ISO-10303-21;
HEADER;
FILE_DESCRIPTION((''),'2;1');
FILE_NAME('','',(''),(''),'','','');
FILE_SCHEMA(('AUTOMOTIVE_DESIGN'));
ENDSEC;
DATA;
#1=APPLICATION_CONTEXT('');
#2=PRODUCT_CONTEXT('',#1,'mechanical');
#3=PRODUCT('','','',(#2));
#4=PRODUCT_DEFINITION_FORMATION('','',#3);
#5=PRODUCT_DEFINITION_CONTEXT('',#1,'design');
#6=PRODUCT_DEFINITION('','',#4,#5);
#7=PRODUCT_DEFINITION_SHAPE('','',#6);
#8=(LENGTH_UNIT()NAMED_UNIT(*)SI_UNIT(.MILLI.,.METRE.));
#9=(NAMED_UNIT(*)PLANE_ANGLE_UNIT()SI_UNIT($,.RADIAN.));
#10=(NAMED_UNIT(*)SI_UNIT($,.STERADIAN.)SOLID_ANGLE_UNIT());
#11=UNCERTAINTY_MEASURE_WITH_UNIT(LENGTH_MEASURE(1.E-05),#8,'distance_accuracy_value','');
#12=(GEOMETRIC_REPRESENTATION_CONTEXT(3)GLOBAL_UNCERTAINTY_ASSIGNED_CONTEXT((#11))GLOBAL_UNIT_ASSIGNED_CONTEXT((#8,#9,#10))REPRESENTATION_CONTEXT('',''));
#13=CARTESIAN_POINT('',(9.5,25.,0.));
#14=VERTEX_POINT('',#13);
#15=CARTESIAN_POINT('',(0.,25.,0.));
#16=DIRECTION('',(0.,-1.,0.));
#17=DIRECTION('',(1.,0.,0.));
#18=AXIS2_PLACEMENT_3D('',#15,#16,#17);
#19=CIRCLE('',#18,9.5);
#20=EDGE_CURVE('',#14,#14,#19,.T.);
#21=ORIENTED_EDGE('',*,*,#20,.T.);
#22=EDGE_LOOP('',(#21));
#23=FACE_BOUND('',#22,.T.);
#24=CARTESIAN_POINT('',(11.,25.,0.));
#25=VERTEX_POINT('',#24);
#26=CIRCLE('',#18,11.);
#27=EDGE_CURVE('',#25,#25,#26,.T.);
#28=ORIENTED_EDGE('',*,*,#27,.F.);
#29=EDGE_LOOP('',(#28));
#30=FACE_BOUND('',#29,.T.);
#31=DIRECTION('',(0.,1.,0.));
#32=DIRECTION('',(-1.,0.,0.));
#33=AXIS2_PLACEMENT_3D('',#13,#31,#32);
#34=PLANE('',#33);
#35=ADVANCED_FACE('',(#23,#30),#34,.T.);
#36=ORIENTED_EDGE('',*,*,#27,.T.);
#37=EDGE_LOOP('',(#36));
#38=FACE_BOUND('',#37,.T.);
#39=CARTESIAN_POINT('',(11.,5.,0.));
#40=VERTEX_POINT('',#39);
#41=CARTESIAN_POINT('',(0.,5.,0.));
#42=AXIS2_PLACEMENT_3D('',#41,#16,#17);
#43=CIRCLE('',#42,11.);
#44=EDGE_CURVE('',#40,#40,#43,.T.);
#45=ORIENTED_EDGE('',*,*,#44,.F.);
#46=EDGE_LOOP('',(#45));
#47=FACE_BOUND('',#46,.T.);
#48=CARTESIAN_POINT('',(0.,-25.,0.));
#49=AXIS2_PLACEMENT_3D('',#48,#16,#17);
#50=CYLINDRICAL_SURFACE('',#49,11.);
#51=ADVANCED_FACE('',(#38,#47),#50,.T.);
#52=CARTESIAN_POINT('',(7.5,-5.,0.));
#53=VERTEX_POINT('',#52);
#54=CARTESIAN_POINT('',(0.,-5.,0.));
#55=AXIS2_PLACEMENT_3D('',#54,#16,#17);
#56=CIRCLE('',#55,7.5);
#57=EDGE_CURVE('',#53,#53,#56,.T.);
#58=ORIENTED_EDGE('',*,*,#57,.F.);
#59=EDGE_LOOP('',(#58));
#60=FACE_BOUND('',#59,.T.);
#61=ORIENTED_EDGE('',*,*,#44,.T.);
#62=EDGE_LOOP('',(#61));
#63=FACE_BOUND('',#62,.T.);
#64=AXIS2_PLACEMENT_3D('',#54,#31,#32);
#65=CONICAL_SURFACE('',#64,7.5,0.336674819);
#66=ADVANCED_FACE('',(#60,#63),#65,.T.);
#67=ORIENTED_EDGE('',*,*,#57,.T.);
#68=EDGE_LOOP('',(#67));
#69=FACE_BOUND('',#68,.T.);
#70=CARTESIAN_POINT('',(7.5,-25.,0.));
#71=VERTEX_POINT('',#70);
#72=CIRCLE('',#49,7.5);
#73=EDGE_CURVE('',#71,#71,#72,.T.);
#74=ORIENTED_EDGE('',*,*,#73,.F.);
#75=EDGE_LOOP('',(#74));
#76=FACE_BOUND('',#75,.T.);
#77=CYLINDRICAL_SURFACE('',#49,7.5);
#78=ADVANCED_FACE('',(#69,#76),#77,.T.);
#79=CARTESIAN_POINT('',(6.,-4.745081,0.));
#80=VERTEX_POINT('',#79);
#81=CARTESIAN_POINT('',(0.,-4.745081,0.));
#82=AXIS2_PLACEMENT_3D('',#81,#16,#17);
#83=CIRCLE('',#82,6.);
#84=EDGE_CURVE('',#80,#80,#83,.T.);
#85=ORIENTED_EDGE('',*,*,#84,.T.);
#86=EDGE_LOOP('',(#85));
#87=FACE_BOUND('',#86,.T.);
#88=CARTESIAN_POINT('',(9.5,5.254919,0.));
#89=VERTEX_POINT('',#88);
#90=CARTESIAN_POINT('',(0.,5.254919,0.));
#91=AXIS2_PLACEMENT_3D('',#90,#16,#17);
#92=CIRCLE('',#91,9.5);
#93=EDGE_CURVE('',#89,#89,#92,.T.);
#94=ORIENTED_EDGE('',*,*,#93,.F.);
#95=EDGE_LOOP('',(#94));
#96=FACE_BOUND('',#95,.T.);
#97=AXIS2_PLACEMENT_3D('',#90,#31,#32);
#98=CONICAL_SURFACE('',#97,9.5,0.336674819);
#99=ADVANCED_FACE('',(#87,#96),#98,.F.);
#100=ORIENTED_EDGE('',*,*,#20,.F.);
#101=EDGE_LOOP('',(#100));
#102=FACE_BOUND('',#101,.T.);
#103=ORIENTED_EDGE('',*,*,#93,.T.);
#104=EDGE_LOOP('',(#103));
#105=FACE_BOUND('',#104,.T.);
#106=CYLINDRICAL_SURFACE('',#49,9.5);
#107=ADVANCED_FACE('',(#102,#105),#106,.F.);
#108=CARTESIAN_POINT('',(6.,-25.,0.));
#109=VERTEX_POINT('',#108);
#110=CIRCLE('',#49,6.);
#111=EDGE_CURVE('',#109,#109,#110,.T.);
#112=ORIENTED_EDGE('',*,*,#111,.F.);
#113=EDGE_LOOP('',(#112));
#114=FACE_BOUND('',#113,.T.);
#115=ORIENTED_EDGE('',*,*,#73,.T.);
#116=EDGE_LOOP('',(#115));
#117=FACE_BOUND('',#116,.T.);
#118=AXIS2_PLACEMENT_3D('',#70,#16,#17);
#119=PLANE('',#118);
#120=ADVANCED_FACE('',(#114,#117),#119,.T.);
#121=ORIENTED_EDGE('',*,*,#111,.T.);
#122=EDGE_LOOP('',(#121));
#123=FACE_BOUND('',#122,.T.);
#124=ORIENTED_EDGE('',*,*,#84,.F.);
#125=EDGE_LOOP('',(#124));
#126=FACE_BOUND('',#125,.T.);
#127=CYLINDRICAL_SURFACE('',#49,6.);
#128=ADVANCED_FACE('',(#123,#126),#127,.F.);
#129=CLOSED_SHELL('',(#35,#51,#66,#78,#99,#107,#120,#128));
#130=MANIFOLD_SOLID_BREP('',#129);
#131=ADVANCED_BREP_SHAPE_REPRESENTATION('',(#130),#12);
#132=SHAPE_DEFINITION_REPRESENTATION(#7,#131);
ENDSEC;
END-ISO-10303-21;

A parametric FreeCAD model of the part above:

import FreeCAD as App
import Part
import Sketcher
from FreeCAD import Vector


def add_polygon(sketch, points):
    """Adds a closed chain of lines whose ends are joined by coincident constraints."""
    first, n = sketch.GeometryCount, len(points)
    for a, b in zip(points, points[1:] + points[:1]):
        sketch.addGeometry(Part.LineSegment(App.Vector(*a, 0), App.Vector(*b, 0)), False)
    for i in range(n):
        sketch.addConstraint(Sketcher.Constraint("Coincident", first + i, 2, first + (i + 1) % n, 1))

doc = App.newDocument("Part")
body = doc.addObject("PartDesign::Body", "Body")

sketch1 = body.newObject("Sketcher::SketchObject", "Sketch")
sketch1.AttachmentSupport = (doc.getObject("XY_Plane"), [""])
sketch1.MapMode = "FlatFace"
add_polygon(sketch1, [(11, 5), (11, 25), (9.5, 25), (9.5, 5.3), (6, -4.7), (6, -25), (7.5, -25), (7.5, -5)])
sketch1.addConstraint([
    Sketcher.Constraint("Vertical", 0),
    Sketcher.Constraint("Horizontal", 1),
    Sketcher.Constraint("Vertical", 2),
    Sketcher.Constraint("Vertical", 4),
    Sketcher.Constraint("Horizontal", 5),
    Sketcher.Constraint("Vertical", 6),
    Sketcher.Constraint("Parallel", 3, 7),
    Sketcher.Constraint("Equal", 1, 5),
    Sketcher.Constraint("Equal", 0, 6),
    Sketcher.Constraint("DistanceY", 0, 1, 0, 2, 20.0),
    Sketcher.Constraint("DistanceX", 1, 2, 1, 1, 1.5),
    Sketcher.Constraint("DistanceX", -1, 1, 0, 2, 11.0),
    Sketcher.Constraint("DistanceY", -1, 1, 0, 2, 25.0),
    Sketcher.Constraint("DistanceX", -1, 1, 3, 2, 6.0),
    Sketcher.Constraint("DistanceY", 4, 2, -1, 1, 25.0),
    Sketcher.Constraint("DistanceY", 2, 2, 2, 1, 19.745081),
])
revolution = body.newObject("PartDesign::Revolution", "Revolution")
revolution.Profile = sketch1
revolution.ReferenceAxis = (sketch1, ["V_Axis"])
revolution.Angle = 360

doc.recompute()
